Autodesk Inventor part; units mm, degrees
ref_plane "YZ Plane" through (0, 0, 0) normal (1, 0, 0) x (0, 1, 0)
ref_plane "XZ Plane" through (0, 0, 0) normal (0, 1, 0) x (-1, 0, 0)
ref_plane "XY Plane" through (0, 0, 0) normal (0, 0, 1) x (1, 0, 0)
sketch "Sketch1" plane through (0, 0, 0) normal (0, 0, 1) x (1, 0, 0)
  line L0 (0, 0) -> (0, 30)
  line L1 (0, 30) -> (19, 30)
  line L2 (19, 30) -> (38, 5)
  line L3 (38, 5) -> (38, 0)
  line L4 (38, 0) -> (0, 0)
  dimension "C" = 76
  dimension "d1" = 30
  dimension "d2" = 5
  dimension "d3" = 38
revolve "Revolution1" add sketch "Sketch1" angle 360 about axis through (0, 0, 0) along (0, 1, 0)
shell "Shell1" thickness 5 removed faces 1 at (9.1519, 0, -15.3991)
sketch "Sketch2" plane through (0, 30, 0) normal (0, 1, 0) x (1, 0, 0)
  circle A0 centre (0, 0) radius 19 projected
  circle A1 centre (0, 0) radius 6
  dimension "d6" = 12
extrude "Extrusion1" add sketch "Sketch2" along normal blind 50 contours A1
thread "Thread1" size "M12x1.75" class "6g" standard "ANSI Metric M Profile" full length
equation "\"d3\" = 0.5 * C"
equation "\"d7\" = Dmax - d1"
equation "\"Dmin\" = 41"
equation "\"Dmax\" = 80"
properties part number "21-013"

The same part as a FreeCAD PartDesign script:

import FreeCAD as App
import Part
import Sketcher
from FreeCAD import Vector


def faces_at(feature, points):
    """Names of the faces that lie closest to the given points."""
    faces = feature.Shape.Faces
    near = lambda p: min(range(len(faces)), key=lambda i: faces[i].distToShape(Part.Vertex(*p))[0])
    return sorted({f"Face{near(p) + 1}" for p in points})

doc = App.newDocument("Part")
params = doc.addObject("Spreadsheet::Sheet", "Params")
for row, (alias, value) in enumerate([
    ("sketch1_width", "38 mm"),
    ("sketch1_height", "30 mm"),
    ("sketch1_height2", "5 mm"),
    ("sketch1_width2", "19 mm"),
    ("revolution_angle", "360 deg"),
    ("thickness_wall", "5 mm"),
    ("sketch2_diameter", "12 mm"),
    ("pad1_length", "50 mm"),
], start=1):
    params.set(f"A{row}", alias)
    params.set(f"B{row}", "=" + value)
    params.setAlias(f"B{row}", alias)

body = doc.addObject("PartDesign::Body", "Body")

# Sketch on XY plane
sketch1 = body.newObject("Sketcher::SketchObject", "Sketch")
sketch1.AttachmentSupport = (doc.getObject("XY_Plane"), [""])
sketch1.MapMode = "FlatFace"
sketch1.addGeometry(Part.LineSegment(Vector(0, 30, 0), Vector(0, 0, 0)), False)
sketch1.addGeometry(Part.LineSegment(Vector(0, 0, 0), Vector(38, 0, 0)), False)
sketch1.addGeometry(Part.LineSegment(Vector(38, 0, 0), Vector(38, 5, 0)), False)
sketch1.addGeometry(Part.LineSegment(Vector(38, 5, 0), Vector(19, 30, 0)), False)
sketch1.addGeometry(Part.LineSegment(Vector(19, 30, 0), Vector(0, 30, 0)), False)
sketch1.addConstraint(Sketcher.Constraint("Coincident", 0, 2, 1, 1))
sketch1.addConstraint(Sketcher.Constraint("Coincident", 1, 2, 2, 1))
sketch1.addConstraint(Sketcher.Constraint("Coincident", 2, 2, 3, 1))
sketch1.addConstraint(Sketcher.Constraint("Coincident", 3, 2, 4, 1))
sketch1.addConstraint(Sketcher.Constraint("Coincident", 4, 2, 0, 1))
sketch1.addConstraint(Sketcher.Constraint("Vertical", 0))
sketch1.addConstraint(Sketcher.Constraint("Horizontal", 1))
sketch1.addConstraint(Sketcher.Constraint("Vertical", 2))
sketch1.addConstraint(Sketcher.Constraint("Horizontal", 4))
sketch1.addConstraint(Sketcher.Constraint("Coincident", 0, 2, -1, 1))
sketch1.addConstraint(Sketcher.Constraint("DistanceX", 1, 1, 1, 2, 38.0))
sketch1.addConstraint(Sketcher.Constraint("DistanceY", 0, 2, 0, 1, 30.0))
sketch1.addConstraint(Sketcher.Constraint("DistanceY", 2, 1, 2, 2, 5.0))
sketch1.addConstraint(Sketcher.Constraint("DistanceX", 4, 2, 4, 1, 19.0))
sketch1.setExpression("Constraints[10]", "Params.sketch1_width")
sketch1.setExpression("Constraints[11]", "Params.sketch1_height")
sketch1.setExpression("Constraints[12]", "Params.sketch1_height2")
sketch1.setExpression("Constraints[13]", "Params.sketch1_width2")
revolution = body.newObject("PartDesign::Revolution", "Revolution")
revolution.Profile = sketch1
revolution.ReferenceAxis = (sketch1, ["V_Axis"])
revolution.setExpression("Angle", "Params.revolution_angle")
doc.recompute()

thickness = body.newObject("PartDesign::Thickness", "Thickness")
thickness.Base = (revolution, faces_at(revolution, [(9.152, 0, -15.399)]))
thickness.setExpression("Value", "Params.thickness_wall")
thickness.Reversed = True
thickness.Join = "Intersection"

# Sketch on XZ plane
sketch2 = body.newObject("Sketcher::SketchObject", "Sketch001")
sketch2.AttachmentSupport = (doc.getObject("XZ_Plane"), [""])
sketch2.MapMode = "FlatFace"
sketch2.AttachmentOffset = App.Placement(Vector(0, 0, -30), App.Rotation())
sketch2.addGeometry(Part.Circle(Vector(0, 0, 0), Vector(0, 0, 1), 6), False)
sketch2.addConstraint(Sketcher.Constraint("Coincident", 0, 3, -1, 1))
sketch2.addConstraint(Sketcher.Constraint("Diameter", 0, 12.0))
sketch2.setExpression("Constraints[1]", "Params.sketch2_diameter")
pad1 = body.newObject("PartDesign::Pad", "Pad")
pad1.Profile = sketch2
pad1.setExpression("Length", "Params.pad1_length")
pad1.Reversed = True

doc.recompute()
